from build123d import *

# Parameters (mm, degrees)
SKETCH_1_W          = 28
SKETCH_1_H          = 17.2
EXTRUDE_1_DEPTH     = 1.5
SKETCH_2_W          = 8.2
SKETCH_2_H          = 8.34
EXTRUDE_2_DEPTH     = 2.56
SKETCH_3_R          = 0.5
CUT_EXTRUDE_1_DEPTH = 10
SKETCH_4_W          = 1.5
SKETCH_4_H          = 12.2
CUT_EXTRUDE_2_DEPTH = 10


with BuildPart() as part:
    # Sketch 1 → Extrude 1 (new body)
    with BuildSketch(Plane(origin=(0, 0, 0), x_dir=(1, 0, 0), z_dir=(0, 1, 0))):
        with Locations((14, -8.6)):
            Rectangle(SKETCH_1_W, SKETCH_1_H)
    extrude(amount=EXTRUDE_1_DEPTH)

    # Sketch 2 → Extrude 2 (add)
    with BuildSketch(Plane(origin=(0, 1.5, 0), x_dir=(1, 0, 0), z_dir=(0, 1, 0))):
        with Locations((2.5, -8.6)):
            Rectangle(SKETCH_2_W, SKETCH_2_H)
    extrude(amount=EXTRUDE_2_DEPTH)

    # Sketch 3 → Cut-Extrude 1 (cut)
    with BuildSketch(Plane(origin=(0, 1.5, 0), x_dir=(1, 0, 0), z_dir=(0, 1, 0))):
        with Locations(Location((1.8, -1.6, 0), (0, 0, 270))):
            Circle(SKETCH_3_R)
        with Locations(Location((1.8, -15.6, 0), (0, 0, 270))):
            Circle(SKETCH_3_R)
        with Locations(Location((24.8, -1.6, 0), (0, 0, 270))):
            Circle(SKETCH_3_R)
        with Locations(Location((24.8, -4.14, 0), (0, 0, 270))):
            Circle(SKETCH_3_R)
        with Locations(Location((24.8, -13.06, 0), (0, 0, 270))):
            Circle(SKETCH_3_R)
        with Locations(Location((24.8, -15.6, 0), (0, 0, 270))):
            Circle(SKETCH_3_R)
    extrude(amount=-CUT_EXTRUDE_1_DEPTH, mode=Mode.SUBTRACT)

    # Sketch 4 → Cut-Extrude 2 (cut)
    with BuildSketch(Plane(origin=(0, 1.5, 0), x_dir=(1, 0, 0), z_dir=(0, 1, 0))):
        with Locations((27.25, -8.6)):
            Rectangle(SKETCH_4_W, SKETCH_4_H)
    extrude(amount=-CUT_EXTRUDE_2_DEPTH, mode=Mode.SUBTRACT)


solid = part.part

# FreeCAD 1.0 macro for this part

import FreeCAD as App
import Part
import Sketcher

V = App.Vector
Q = App.Units.Quantity

doc = App.newDocument("Part")
body = doc.addObject("PartDesign::Body", "Body")

# Sketch on XZ plane
sketch1 = body.newObject("Sketcher::SketchObject", "Sketch")
sketch1.AttachmentSupport = (doc.getObject("XZ_Plane"), [""])
sketch1.MapMode = "FlatFace"
sketch1.addGeometry(Part.LineSegment(V(0, 0, 0), V(0, 17, 0)), False)
sketch1.addGeometry(Part.LineSegment(V(0, 17, 0), V(28, 17, 0)), False)
sketch1.addGeometry(Part.LineSegment(V(28, 17, 0), V(28, 0, 0)), False)
sketch1.addGeometry(Part.LineSegment(V(28, 0, 0), V(0, 0, 0)), False)
sketch1.addConstraint(Sketcher.Constraint("Coincident", 0, 2, 1, 1))
sketch1.addConstraint(Sketcher.Constraint("Coincident", 1, 2, 2, 1))
sketch1.addConstraint(Sketcher.Constraint("Coincident", 2, 2, 3, 1))
sketch1.addConstraint(Sketcher.Constraint("Coincident", 3, 2, 0, 1))
sketch1.addConstraint(Sketcher.Constraint("Vertical", 0))
sketch1.addConstraint(Sketcher.Constraint("Horizontal", 1))
sketch1.addConstraint(Sketcher.Constraint("Vertical", 2))
sketch1.addConstraint(Sketcher.Constraint("Horizontal", 3))
sketch1.addConstraint(Sketcher.Constraint("Coincident", 3, 2, -1, 1))
sketch1.addConstraint(Sketcher.Constraint("DistanceX", 1, 1, 1, 2, Q("28 mm")))
sketch1.addConstraint(Sketcher.Constraint("DistanceY", 0, 1, 0, 2, Q("17.2 mm")))
pad1 = body.newObject("PartDesign::Pad", "Pad")
pad1.Profile = sketch1
pad1.Length = 1.5
pad1.Reversed = True

# Sketch on XZ plane
sketch2 = body.newObject("Sketcher::SketchObject", "Sketch001")
sketch2.AttachmentSupport = (doc.getObject("XZ_Plane"), [""])
sketch2.MapMode = "FlatFace"
sketch2.AttachmentOffset = App.Placement(V(0, 0, -1.5), App.Rotation())
sketch2.addGeometry(Part.LineSegment(V(-2, 4, 0), V(-2, 13, 0)), False)
sketch2.addGeometry(Part.LineSegment(V(-2, 13, 0), V(7, 13, 0)), False)
sketch2.addGeometry(Part.LineSegment(V(7, 13, 0), V(7, 4, 0)), False)
sketch2.addGeometry(Part.LineSegment(V(7, 4, 0), V(-2, 4, 0)), False)
sketch2.addConstraint(Sketcher.Constraint("Coincident", 0, 2, 1, 1))
sketch2.addConstraint(Sketcher.Constraint("Coincident", 1, 2, 2, 1))
sketch2.addConstraint(Sketcher.Constraint("Coincident", 2, 2, 3, 1))
sketch2.addConstraint(Sketcher.Constraint("Coincident", 3, 2, 0, 1))
sketch2.addConstraint(Sketcher.Constraint("Vertical", 0))
sketch2.addConstraint(Sketcher.Constraint("Horizontal", 1))
sketch2.addConstraint(Sketcher.Constraint("Vertical", 2))
sketch2.addConstraint(Sketcher.Constraint("Horizontal", 3))
sketch2.addConstraint(Sketcher.Constraint("DistanceX", 1, 1, 1, 2, Q("8.2 mm")))
sketch2.addConstraint(Sketcher.Constraint("DistanceY", 0, 1, 0, 2, Q("8.34 mm")))
sketch2.addConstraint(Sketcher.Constraint("DistanceX", 0, 2, -1, 1, Q("1.6 mm")))
sketch2.addConstraint(Sketcher.Constraint("DistanceY", -1, 1, 0, 2, Q("12.77 mm")))
pad2 = body.newObject("PartDesign::Pad", "Pad001")
pad2.Profile = sketch2
pad2.Length = 2.56
pad2.Reversed = True

# Sketch on XZ plane
sketch3 = body.newObject("Sketcher::SketchObject", "Sketch002")
sketch3.AttachmentSupport = (doc.getObject("XZ_Plane"), [""])
sketch3.MapMode = "FlatFace"
sketch3.AttachmentOffset = App.Placement(V(0, 0, -1.5), App.Rotation())
sketch3.addGeometry(Part.Circle(V(1.8, 1.6, 0), V(0, 0, 1), 0.5), False)
sketch3.addGeometry(Part.Circle(V(1.8, 15.6, 0), V(0, 0, 1), 0.5), False)
sketch3.addGeometry(Part.Circle(V(24.8, 1.6, 0), V(0, 0, 1), 0.5), False)
sketch3.addGeometry(Part.Circle(V(24.8, 4.1, 0), V(0, 0, 1), 0.5), False)
sketch3.addGeometry(Part.Circle(V(24.8, 13.1, 0), V(0, 0, 1), 0.5), False)
sketch3.addGeometry(Part.Circle(V(24.8, 15.6, 0), V(0, 0, 1), 0.5), False)
sketch3.addConstraint(Sketcher.Constraint("Equal", 0, 1))
sketch3.addConstraint(Sketcher.Constraint("Equal", 1, 2))
sketch3.addConstraint(Sketcher.Constraint("Equal", 2, 3))
sketch3.addConstraint(Sketcher.Constraint("Equal", 3, 4))
sketch3.addConstraint(Sketcher.Constraint("Equal", 4, 5))
sketch3.addConstraint(Sketcher.Constraint("Horizontal", 0, 3, 2, 3))
sketch3.addConstraint(Sketcher.Constraint("Horizontal", 1, 3, 5, 3))
sketch3.addConstraint(Sketcher.Constraint("Vertical", 0, 3, 1, 3))
sketch3.addConstraint(Sketcher.Constraint("Vertical", 2, 3, 3, 3))
sketch3.addConstraint(Sketcher.Constraint("Vertical", 3, 3, 4, 3))
sketch3.addConstraint(Sketcher.Constraint("Vertical", 4, 3, 5, 3))
sketch3.addConstraint(Sketcher.Constraint("Diameter", 0, Q("1 mm")))
sketch3.addConstraint(Sketcher.Constraint("DistanceY", 0, 3, 1, 3, Q("14 mm")))
sketch3.addConstraint(Sketcher.Constraint("DistanceX", 0, 3, 2, 3, Q("23 mm")))
sketch3.addConstraint(Sketcher.Constraint("DistanceX", -1, 1, 0, 3, Q("1.8 mm")))
sketch3.addConstraint(Sketcher.Constraint("DistanceY", -1, 1, 0, 3, Q("1.6 mm")))
sketch3.addConstraint(Sketcher.Constraint("DistanceY", -1, 1, 3, 3, Q("4.14 mm")))
sketch3.addConstraint(Sketcher.Constraint("DistanceY", -1, 1, 4, 3, Q("13.06 mm")))
pocket1 = body.newObject("PartDesign::Pocket", "Pocket")
pocket1.Profile = sketch3
pocket1.Length = 10
pocket1.Reversed = True

# Sketch on XZ plane
sketch4 = body.newObject("Sketcher::SketchObject", "Sketch003")
sketch4.AttachmentSupport = (doc.getObject("XZ_Plane"), [""])
sketch4.MapMode = "FlatFace"
sketch4.AttachmentOffset = App.Placement(V(0, 0, -1.5), App.Rotation())
sketch4.addGeometry(Part.LineSegment(V(26.5, 2.5, 0), V(26.5, 14.7, 0)), False)
sketch4.addGeometry(Part.LineSegment(V(26.5, 14.7, 0), V(28, 14.7, 0)), False)
sketch4.addGeometry(Part.LineSegment(V(28, 14.7, 0), V(28, 2.5, 0)), False)
sketch4.addGeometry(Part.LineSegment(V(28, 2.5, 0), V(26.5, 2.5, 0)), False)
sketch4.addConstraint(Sketcher.Constraint("Coincident", 0, 2, 1, 1))
sketch4.addConstraint(Sketcher.Constraint("Coincident", 1, 2, 2, 1))
sketch4.addConstraint(Sketcher.Constraint("Coincident", 2, 2, 3, 1))
sketch4.addConstraint(Sketcher.Constraint("Coincident", 3, 2, 0, 1))
sketch4.addConstraint(Sketcher.Constraint("Vertical", 0))
sketch4.addConstraint(Sketcher.Constraint("Horizontal", 1))
sketch4.addConstraint(Sketcher.Constraint("Vertical", 2))
sketch4.addConstraint(Sketcher.Constraint("Horizontal", 3))
sketch4.addConstraint(Sketcher.Constraint("DistanceX", 1, 1, 1, 2, Q("1.5 mm")))
sketch4.addConstraint(Sketcher.Constraint("DistanceY", 0, 1, 0, 2, Q("12.2 mm")))
sketch4.addConstraint(Sketcher.Constraint("DistanceX", -1, 1, 1, 2, Q("28 mm")))
sketch4.addConstraint(Sketcher.Constraint("DistanceY", -1, 1, 0, 2, Q("14.7 mm")))
pocket2 = body.newObject("PartDesign::Pocket", "Pocket001")
pocket2.Profile = sketch4
pocket2.Length = 10
pocket2.Reversed = True

doc.recompute()
